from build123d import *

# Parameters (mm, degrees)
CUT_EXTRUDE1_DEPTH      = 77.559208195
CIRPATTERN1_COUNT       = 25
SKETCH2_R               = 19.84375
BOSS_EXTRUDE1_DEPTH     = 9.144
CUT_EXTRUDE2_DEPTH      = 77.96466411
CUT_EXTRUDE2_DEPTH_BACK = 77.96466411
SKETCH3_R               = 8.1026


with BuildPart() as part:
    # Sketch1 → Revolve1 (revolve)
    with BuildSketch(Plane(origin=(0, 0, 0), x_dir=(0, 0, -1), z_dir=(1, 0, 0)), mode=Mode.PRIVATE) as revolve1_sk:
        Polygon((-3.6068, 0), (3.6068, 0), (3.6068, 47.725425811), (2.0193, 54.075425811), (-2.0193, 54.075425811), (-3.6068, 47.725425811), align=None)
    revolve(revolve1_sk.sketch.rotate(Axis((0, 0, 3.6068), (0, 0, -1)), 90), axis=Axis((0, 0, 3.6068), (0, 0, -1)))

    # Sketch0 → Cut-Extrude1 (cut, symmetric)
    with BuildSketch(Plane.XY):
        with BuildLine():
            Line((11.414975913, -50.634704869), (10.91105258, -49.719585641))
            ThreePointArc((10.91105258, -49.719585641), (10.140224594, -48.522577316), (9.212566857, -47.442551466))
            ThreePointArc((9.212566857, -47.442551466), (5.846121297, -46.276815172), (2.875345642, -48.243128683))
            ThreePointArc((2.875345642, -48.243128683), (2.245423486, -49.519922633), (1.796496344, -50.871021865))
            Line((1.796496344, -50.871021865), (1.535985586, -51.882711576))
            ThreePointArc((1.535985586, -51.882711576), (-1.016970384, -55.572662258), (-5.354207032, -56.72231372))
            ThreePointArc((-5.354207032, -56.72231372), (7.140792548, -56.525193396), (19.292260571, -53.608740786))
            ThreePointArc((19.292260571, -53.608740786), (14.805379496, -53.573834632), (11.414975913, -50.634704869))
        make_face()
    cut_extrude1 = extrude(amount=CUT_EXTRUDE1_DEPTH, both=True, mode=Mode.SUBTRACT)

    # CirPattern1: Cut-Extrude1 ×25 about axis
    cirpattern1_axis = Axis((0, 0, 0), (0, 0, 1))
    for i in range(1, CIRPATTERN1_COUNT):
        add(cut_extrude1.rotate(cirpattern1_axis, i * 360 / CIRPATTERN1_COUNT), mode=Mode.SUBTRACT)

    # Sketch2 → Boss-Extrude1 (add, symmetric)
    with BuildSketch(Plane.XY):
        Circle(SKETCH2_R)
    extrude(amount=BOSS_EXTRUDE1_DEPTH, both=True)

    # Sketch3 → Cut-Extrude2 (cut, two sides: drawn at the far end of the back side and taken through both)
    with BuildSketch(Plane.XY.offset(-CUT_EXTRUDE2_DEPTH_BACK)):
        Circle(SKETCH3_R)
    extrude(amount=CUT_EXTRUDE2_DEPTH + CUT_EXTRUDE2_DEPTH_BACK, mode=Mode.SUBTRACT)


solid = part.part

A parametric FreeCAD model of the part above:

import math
import FreeCAD as App
import Part
import Sketcher

V = App.Vector
Q = App.Units.Quantity

doc = App.newDocument("Part")
params = doc.addObject("Spreadsheet::Sheet", "Params")
for row, (alias, value) in enumerate([
    ("sketch1_height", "0.284 in"),
    ("sketch1_height2", "0.159 in"),
    ("revolution_angle", "360 deg"),
    ("pocket1_length", "155.118416 mm"),
    ("sketch3_diameter", "1.5625 in"),
    ("pad1_length", "0.72 in"),
    ("sketch4_diameter", "0.638 in"),
], start=1):
    params.set(f"A{row}", alias)
    params.set(f"B{row}", "=" + value)
    params.setAlias(f"B{row}", alias)

body = doc.addObject("PartDesign::Body", "Body")

# Sketch on YZ plane
sketch1 = body.newObject("Sketcher::SketchObject", "Sketch")
sketch1.AttachmentSupport = (doc.getObject("YZ_Plane"), [""])
sketch1.MapMode = "FlatFace"
sketch1.addGeometry(Part.LineSegment(V(0, 3.6, 0), V(0, -3.6, 0)), False)
sketch1.addGeometry(Part.LineSegment(V(0, -3.6, 0), V(47.7, -3.6, 0)), False)
sketch1.addGeometry(Part.LineSegment(V(47.7, -3.6, 0), V(54.1, -2, 0)), False)
sketch1.addGeometry(Part.LineSegment(V(54.1, -2, 0), V(54.1, 2, 0)), False)
sketch1.addGeometry(Part.LineSegment(V(54.1, 2, 0), V(47.7, 3.6, 0)), False)
sketch1.addGeometry(Part.LineSegment(V(47.7, 3.6, 0), V(0, 3.6, 0)), False)
sketch1.addConstraint(Sketcher.Constraint("Coincident", 0, 2, 1, 1))
sketch1.addConstraint(Sketcher.Constraint("Coincident", 1, 2, 2, 1))
sketch1.addConstraint(Sketcher.Constraint("Coincident", 2, 2, 3, 1))
sketch1.addConstraint(Sketcher.Constraint("Coincident", 3, 2, 4, 1))
sketch1.addConstraint(Sketcher.Constraint("Coincident", 4, 2, 5, 1))
sketch1.addConstraint(Sketcher.Constraint("Coincident", 5, 2, 0, 1))
sketch1.addConstraint(Sketcher.Constraint("Vertical", 0))
sketch1.addConstraint(Sketcher.Constraint("Horizontal", 1))
sketch1.addConstraint(Sketcher.Constraint("Vertical", 3))
sketch1.addConstraint(Sketcher.Constraint("Horizontal", 5))
sketch1.addConstraint(Sketcher.Constraint("Symmetric", 0, 2, 5, 2, -1, 1))
sketch1.addConstraint(Sketcher.Constraint("Vertical", 1, 2, 4, 2))
sketch1.addConstraint(Sketcher.Constraint("Equal", 2, 4))
sketch1.addConstraint(Sketcher.Constraint("DistanceY", 0, 2, 0, 1, Q("0.284 in")))
sketch1.addConstraint(Sketcher.Constraint("DistanceY", 3, 1, 3, 2, Q("0.159 in")))
sketch1.addConstraint(Sketcher.Constraint("DistanceX", 1, 2, 2, 2, Q("0.25 in")))
sketch1.addConstraint(Sketcher.Constraint("DistanceX", 1, 1, 1, 2, 47.725426))
sketch1.setExpression("Constraints[13]", "Params.sketch1_height")
sketch1.setExpression("Constraints[14]", "Params.sketch1_height2")
revolution = body.newObject("PartDesign::Revolution", "Revolution")
revolution.Profile = sketch1
revolution.ReferenceAxis = (sketch1, ["V_Axis"])
revolution.setExpression("Angle", "Params.revolution_angle")

# Sketch on XY plane
sketch2 = body.newObject("Sketcher::SketchObject", "Sketch001")
sketch2.AttachmentSupport = (doc.getObject("XY_Plane"), [""])
sketch2.MapMode = "FlatFace"
sketch2.addGeometry(Part.LineSegment(V(11.4, -50.6, 0), V(10.9, -49.7, 0)), False)
sketch2.addGeometry(Part.ArcOfCircle(Part.Circle(V(1.8, -54.7, 0), V(0, 0, 1), 10.4), math.radians(28.84), math.radians(44.6)), False)
sketch2.addGeometry(Part.ArcOfCircle(Part.Circle(V(6.3, -50.3, 0), V(0, 0, 1), 4), math.radians(45), math.radians(150)), False)
sketch2.addGeometry(Part.ArcOfCircle(Part.Circle(V(11.8, -53.5, 0), V(0, 0, 1), 10.4), math.radians(149.8), math.radians(165.56)), False)
sketch2.addGeometry(Part.LineSegment(V(1.8, -50.9, 0), V(1.5, -51.9, 0)), False)
sketch2.addGeometry(Part.ArcOfCircle(Part.Circle(V(-4.7, -50.3, 0), V(0, 0, 1), 6.5), math.radians(-95), math.radians(-14)), False)
sketch2.addGeometry(Part.ArcOfCircle(Part.Circle(V(0, 0, 0), V(0, 0, 1), 57), math.radians(-95), math.radians(-70)), False)
sketch2.addGeometry(Part.ArcOfCircle(Part.Circle(V(17.1, -47.5, 0), V(0, 0, 1), 6.5), math.radians(-151), math.radians(-70)), False)
sketch2.addConstraint(Sketcher.Constraint("Tangent", 0, 2, 1, 1))
sketch2.addConstraint(Sketcher.Constraint("Tangent", 1, 2, 2, 1))
sketch2.addConstraint(Sketcher.Constraint("Tangent", 2, 2, 3, 1))
sketch2.addConstraint(Sketcher.Constraint("Tangent", 3, 2, 4, 1))
sketch2.addConstraint(Sketcher.Constraint("Tangent", 4, 2, 5, 2))
sketch2.addConstraint(Sketcher.Constraint("Tangent", 5, 1, 6, 1))
sketch2.addConstraint(Sketcher.Constraint("Tangent", 6, 2, 7, 2))
sketch2.addConstraint(Sketcher.Constraint("Tangent", 7, 1, 0, 1))
sketch2.addConstraint(Sketcher.Constraint("Coincident", 6, 3, -1, 1))
sketch2.addConstraint(Sketcher.Constraint("Equal", 1, 3))
sketch2.addConstraint(Sketcher.Constraint("Equal", 5, 7))
sketch2.addConstraint(Sketcher.Constraint("Horizontal", 2, 3, 5, 3))
sketch2.addConstraint(Sketcher.Constraint("Equal", 0, 4))
sketch2.addConstraint(Sketcher.Constraint("DistanceX", -1, 1, 2, 3, Q("0.25 in")))
sketch2.addConstraint(Sketcher.Constraint("Angle", 0, Q("118.84 deg")))
sketch2.addConstraint(Sketcher.Constraint("Angle", 4, Q("-104.44 deg")))
sketch2.addConstraint(Sketcher.Constraint("Radius", 1, 10.360152))
sketch2.addConstraint(Sketcher.Constraint("Radius", 5, 6.48559))
sketch2.addConstraint(Sketcher.Constraint("DistanceX", 5, 3, -1, 1, Q("0.1868 in")))
sketch2.addConstraint(Sketcher.Constraint("Radius", 2, 4.020312))
sketch2.addConstraint(Sketcher.Constraint("Radius", 6, 56.974454))
pocket1 = body.newObject("PartDesign::Pocket", "Pocket")
pocket1.Profile = sketch2
pocket1.setExpression("Length", "Params.pocket1_length")
pocket1.Midplane = True
doc.recompute()

polarpattern = body.newObject("PartDesign::PolarPattern", "PolarPattern")
polarpattern.Originals = [pocket1]
polarpattern.Axis = (doc.getObject("Z_Axis"), [""])
polarpattern.Angle = 360
polarpattern.Occurrences = 25
body.Tip = polarpattern

# Sketch on XY plane
sketch3 = body.newObject("Sketcher::SketchObject", "Sketch002")
sketch3.AttachmentSupport = (doc.getObject("XY_Plane"), [""])
sketch3.MapMode = "FlatFace"
sketch3.addGeometry(Part.Circle(V(0, 0, 0), V(0, 0, 1), 20), False)
sketch3.addConstraint(Sketcher.Constraint("Coincident", 0, 3, -1, 1))
sketch3.addConstraint(Sketcher.Constraint("Diameter", 0, Q("1.5625 in")))
sketch3.setExpression("Constraints[1]", "Params.sketch3_diameter")
pad1 = body.newObject("PartDesign::Pad", "Pad")
pad1.Profile = sketch3
pad1.setExpression("Length", "Params.pad1_length")
pad1.Midplane = True

# Sketch on XY plane
sketch4 = body.newObject("Sketcher::SketchObject", "Sketch003")
sketch4.AttachmentSupport = (doc.getObject("XY_Plane"), [""])
sketch4.MapMode = "FlatFace"
sketch4.addGeometry(Part.Circle(V(0, 0, 0), V(0, 0, 1), 8), False)
sketch4.addConstraint(Sketcher.Constraint("Coincident", 0, 3, -1, 1))
sketch4.addConstraint(Sketcher.Constraint("Diameter", 0, Q("0.638 in")))
sketch4.setExpression("Constraints[1]", "Params.sketch4_diameter")
pocket2 = body.newObject("PartDesign::Pocket", "Pocket001")
pocket2.Profile = sketch4
pocket2.Type = "ThroughAll"
pocket2.Midplane = True

doc.recompute()
